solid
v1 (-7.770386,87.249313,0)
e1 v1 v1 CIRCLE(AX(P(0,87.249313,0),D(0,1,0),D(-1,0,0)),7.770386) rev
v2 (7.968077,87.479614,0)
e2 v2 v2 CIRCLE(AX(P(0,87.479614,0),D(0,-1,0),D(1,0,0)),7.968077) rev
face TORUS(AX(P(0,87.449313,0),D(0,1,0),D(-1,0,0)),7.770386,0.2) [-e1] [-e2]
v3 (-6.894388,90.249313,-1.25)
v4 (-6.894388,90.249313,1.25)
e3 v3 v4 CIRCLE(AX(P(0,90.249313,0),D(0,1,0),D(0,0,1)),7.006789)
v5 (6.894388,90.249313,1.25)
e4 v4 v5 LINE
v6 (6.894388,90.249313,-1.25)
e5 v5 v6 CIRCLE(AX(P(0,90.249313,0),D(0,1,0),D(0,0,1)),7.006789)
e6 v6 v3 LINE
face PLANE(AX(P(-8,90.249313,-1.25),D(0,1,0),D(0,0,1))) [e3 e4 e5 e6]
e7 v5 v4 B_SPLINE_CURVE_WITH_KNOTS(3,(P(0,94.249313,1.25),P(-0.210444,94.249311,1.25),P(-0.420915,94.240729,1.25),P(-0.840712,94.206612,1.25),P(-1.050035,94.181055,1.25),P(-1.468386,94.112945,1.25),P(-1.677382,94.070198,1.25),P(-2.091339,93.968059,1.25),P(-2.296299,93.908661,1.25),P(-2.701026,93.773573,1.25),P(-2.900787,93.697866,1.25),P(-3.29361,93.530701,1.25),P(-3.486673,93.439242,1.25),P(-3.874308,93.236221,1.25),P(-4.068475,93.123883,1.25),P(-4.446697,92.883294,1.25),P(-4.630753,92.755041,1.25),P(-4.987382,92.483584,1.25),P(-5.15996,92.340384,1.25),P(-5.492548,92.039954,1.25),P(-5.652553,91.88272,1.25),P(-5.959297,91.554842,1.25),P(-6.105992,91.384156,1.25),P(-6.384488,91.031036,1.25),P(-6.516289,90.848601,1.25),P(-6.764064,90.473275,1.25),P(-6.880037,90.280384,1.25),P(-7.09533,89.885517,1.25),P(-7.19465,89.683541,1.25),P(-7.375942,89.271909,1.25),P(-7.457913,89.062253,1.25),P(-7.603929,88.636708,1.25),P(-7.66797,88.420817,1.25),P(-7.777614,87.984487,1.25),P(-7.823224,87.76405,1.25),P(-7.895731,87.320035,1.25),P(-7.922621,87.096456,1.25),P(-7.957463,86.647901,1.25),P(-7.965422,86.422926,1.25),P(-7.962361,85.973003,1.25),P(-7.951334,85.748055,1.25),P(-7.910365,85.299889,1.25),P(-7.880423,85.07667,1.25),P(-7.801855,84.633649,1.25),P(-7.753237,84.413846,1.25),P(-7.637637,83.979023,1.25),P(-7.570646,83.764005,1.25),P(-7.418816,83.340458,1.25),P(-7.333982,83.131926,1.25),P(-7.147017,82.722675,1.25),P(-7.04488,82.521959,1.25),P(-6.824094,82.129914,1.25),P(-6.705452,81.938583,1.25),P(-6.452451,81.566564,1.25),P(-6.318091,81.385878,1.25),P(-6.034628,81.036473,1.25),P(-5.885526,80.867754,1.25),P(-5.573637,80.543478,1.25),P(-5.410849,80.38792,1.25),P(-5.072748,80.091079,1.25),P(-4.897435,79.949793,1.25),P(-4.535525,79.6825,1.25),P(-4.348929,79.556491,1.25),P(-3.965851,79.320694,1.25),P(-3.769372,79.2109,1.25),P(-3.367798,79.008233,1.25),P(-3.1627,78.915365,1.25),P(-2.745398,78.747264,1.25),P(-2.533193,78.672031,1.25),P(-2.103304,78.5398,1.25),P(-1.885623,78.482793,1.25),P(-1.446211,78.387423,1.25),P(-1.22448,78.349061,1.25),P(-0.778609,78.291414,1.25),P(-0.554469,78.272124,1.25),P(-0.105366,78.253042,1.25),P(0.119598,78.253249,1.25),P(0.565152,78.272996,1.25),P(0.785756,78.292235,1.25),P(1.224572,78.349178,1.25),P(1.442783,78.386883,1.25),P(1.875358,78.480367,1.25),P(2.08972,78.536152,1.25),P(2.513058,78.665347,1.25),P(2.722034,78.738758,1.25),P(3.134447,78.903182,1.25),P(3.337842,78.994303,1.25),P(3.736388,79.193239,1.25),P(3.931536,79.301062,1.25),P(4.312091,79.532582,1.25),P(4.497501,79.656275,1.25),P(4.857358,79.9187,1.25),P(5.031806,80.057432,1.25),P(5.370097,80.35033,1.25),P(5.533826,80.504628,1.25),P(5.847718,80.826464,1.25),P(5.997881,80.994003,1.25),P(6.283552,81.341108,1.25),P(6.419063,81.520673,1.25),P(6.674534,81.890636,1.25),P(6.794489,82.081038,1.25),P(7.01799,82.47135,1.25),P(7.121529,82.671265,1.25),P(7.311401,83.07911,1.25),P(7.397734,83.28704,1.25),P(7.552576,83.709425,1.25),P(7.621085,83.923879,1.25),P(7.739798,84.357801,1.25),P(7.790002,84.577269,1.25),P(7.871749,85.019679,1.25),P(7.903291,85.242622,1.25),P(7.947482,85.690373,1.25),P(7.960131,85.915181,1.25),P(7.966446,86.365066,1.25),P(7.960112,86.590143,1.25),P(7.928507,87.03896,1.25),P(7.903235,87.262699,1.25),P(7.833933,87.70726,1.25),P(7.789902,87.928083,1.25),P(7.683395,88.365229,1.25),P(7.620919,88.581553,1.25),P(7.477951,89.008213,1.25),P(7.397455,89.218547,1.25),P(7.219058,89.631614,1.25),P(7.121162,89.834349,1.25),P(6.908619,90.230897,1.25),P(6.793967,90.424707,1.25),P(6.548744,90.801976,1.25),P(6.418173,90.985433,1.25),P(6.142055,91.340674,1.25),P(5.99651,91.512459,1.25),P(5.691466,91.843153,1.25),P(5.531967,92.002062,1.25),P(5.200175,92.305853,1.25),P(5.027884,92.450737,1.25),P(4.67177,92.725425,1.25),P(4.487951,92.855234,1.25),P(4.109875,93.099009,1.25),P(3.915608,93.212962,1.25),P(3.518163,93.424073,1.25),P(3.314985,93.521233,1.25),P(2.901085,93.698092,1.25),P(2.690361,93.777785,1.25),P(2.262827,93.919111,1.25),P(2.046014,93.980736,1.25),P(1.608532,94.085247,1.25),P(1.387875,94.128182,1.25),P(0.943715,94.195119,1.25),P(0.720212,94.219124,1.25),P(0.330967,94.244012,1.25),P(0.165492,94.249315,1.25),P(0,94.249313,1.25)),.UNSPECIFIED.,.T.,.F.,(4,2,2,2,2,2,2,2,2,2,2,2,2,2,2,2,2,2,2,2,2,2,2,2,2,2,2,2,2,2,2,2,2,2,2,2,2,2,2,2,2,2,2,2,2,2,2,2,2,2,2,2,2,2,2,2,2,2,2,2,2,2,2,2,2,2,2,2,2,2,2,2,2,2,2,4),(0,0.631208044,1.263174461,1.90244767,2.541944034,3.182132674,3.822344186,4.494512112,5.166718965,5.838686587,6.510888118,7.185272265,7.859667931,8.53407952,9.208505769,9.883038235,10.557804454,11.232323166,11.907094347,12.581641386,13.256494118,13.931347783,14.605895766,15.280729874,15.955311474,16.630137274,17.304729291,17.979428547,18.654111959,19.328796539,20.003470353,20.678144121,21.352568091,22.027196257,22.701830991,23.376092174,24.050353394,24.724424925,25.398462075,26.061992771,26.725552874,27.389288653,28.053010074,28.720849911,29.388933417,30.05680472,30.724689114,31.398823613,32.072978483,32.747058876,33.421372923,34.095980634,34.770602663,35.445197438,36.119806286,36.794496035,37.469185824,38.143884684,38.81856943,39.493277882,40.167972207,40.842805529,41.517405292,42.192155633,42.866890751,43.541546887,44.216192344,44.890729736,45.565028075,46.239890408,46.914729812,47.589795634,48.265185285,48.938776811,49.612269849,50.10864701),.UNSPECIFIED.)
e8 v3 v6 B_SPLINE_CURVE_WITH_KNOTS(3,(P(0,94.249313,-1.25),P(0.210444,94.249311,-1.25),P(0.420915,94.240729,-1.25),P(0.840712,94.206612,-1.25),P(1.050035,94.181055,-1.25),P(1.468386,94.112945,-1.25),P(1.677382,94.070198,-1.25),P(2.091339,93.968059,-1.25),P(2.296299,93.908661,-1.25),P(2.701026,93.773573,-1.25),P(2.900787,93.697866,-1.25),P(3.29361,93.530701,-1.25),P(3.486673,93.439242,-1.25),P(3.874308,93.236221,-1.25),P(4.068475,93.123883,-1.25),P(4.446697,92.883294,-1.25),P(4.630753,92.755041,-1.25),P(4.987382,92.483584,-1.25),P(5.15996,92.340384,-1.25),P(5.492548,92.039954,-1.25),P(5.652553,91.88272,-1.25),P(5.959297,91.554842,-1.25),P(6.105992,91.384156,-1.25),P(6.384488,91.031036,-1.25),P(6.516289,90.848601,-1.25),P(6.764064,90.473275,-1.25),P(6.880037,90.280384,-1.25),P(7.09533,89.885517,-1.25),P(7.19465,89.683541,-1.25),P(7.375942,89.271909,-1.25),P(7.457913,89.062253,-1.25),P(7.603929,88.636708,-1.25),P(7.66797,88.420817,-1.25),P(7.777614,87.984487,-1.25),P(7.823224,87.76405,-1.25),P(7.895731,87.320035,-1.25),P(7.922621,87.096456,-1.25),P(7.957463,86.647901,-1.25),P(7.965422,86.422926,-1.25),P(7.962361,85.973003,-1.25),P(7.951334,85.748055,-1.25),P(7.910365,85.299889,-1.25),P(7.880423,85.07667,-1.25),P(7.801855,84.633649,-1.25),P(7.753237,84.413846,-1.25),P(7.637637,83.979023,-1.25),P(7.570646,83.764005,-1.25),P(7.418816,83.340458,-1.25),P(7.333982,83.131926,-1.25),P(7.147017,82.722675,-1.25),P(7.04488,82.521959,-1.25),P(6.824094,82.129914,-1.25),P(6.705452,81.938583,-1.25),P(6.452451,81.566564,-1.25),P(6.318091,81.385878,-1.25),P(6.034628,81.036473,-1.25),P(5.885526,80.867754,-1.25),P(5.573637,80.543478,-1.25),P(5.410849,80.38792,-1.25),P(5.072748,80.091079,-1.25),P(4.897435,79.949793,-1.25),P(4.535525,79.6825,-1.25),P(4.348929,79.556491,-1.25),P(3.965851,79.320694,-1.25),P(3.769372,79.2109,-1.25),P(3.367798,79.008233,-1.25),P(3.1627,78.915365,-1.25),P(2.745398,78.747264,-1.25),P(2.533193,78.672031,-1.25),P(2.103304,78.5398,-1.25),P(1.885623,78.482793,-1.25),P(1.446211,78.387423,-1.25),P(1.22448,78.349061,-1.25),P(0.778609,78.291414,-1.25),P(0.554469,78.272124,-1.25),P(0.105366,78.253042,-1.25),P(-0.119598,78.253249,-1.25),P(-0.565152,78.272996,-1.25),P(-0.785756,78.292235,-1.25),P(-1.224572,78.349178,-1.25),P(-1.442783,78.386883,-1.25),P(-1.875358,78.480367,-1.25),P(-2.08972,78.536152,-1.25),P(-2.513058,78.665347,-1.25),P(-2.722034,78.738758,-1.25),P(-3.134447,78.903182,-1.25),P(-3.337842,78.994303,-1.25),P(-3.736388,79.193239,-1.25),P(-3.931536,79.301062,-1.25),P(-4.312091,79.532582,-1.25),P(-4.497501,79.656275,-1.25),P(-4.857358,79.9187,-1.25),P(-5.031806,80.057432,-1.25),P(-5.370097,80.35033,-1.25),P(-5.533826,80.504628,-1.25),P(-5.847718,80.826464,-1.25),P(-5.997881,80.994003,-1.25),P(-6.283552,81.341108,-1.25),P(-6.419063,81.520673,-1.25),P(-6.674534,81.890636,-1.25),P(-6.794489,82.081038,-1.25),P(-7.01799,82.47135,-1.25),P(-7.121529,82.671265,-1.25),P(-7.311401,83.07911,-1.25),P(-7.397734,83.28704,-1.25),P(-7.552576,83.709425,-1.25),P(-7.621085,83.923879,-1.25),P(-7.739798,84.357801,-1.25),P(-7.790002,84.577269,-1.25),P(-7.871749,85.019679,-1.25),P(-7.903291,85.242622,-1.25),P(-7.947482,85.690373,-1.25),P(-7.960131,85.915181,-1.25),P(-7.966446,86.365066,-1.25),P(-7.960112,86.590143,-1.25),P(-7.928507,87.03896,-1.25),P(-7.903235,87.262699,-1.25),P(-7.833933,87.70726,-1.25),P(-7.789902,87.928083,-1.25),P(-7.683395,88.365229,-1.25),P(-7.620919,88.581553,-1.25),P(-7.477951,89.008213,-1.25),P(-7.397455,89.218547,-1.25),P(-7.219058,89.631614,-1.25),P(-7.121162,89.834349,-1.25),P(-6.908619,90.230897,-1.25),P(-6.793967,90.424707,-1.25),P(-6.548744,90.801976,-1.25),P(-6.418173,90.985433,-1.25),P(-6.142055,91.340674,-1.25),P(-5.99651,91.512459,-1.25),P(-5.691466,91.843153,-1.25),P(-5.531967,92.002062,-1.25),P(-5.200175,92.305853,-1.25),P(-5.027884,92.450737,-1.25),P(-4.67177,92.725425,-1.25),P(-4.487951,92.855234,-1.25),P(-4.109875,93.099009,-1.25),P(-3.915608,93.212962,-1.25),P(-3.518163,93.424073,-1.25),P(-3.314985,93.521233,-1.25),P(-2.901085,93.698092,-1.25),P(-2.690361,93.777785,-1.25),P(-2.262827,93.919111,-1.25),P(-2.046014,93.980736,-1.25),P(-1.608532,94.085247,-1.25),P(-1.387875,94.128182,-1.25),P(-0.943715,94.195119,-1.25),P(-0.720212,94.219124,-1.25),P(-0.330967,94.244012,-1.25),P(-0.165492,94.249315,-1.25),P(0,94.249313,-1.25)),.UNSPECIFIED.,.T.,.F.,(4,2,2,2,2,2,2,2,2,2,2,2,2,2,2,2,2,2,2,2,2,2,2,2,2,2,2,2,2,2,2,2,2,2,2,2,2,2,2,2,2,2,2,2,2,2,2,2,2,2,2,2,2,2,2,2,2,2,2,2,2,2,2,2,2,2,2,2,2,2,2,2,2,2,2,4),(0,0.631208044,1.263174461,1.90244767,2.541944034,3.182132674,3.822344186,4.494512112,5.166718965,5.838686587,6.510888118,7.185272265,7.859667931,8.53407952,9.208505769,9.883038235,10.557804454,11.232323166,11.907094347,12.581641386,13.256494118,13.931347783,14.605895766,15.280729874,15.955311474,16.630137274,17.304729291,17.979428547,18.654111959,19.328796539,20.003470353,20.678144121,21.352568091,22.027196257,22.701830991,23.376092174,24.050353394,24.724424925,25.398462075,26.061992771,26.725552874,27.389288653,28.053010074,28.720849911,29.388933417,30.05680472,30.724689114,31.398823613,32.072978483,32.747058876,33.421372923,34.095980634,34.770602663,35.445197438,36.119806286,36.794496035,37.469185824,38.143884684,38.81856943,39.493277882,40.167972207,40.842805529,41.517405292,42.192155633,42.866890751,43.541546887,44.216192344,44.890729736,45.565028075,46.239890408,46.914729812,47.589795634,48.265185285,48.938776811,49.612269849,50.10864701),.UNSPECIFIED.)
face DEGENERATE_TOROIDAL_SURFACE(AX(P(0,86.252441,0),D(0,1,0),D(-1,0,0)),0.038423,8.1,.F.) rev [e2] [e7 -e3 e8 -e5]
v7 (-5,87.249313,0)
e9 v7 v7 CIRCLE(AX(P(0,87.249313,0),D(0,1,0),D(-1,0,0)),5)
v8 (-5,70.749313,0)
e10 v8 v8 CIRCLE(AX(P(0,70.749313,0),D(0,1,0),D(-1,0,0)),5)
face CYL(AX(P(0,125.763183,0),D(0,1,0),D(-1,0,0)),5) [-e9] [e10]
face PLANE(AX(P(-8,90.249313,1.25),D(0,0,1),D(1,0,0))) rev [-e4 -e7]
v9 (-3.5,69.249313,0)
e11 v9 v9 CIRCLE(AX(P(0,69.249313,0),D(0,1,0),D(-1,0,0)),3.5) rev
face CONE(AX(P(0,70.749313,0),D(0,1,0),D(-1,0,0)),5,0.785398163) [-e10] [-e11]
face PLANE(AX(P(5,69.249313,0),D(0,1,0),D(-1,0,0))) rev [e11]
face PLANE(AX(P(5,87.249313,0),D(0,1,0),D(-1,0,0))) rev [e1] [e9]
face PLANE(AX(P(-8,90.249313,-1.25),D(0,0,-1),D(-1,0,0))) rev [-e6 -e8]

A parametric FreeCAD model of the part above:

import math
import FreeCAD as App
import Part
import Sketcher
Q = App.Units.Quantity


def edges_at(feature, points):
    """Names of the edges that pass closest to the given points."""
    edges = feature.Shape.Edges
    near = lambda p: min(range(len(edges)), key=lambda i: edges[i].distToShape(Part.Vertex(*p))[0])
    return sorted({f"Edge{near(p) + 1}" for p in points})

doc = App.newDocument("Part")
body = doc.addObject("PartDesign::Body", "Body")

# Sketch on XY plane
sketch1 = body.newObject("Sketcher::SketchObject", "Sketch")
sketch1.AttachmentSupport = (doc.getObject("XY_Plane"), [""])
sketch1.MapMode = "FlatFace"
sketch1.addGeometry(Part.LineSegment(App.Vector(5, 87.2, 0), App.Vector(8, 87.2, 0)), False)
sketch1.addGeometry(Part.ArcOfCircle(Part.Circle(App.Vector(0, 86.3, 0), App.Vector(0, 0, 1), 8.1), math.radians(7), math.radians(81)), False)
sketch1.addGeometry(Part.LineSegment(App.Vector(1.2, 94.2, 0), App.Vector(0, 94.2, 0)), False)
sketch1.addGeometry(Part.LineSegment(App.Vector(0, 94.2, 0), App.Vector(0, 69.2, 0)), False)
sketch1.addGeometry(Part.LineSegment(App.Vector(0, 69.2, 0), App.Vector(5, 69.2, 0)), False)
sketch1.addGeometry(Part.LineSegment(App.Vector(5, 69.2, 0), App.Vector(5, 87.2, 0)), False)
sketch1.addConstraint(Sketcher.Constraint("Coincident", 0, 2, 1, 1))
sketch1.addConstraint(Sketcher.Constraint("Coincident", 1, 2, 2, 1))
sketch1.addConstraint(Sketcher.Constraint("Coincident", 2, 2, 3, 1))
sketch1.addConstraint(Sketcher.Constraint("Coincident", 3, 2, 4, 1))
sketch1.addConstraint(Sketcher.Constraint("Coincident", 4, 2, 5, 1))
sketch1.addConstraint(Sketcher.Constraint("Coincident", 5, 2, 0, 1))
sketch1.addConstraint(Sketcher.Constraint("Horizontal", 0))
sketch1.addConstraint(Sketcher.Constraint("Horizontal", 2))
sketch1.addConstraint(Sketcher.Constraint("Vertical", 3))
sketch1.addConstraint(Sketcher.Constraint("Horizontal", 4))
sketch1.addConstraint(Sketcher.Constraint("Vertical", 5))
sketch1.addConstraint(Sketcher.Constraint("PointOnObject", 2, 2, -2))
sketch1.addConstraint(Sketcher.Constraint("Radius", 1, Q("8.1 mm")))
sketch1.addConstraint(Sketcher.Constraint("DistanceX", 0, 1, 0, 2, Q("3 mm")))
sketch1.addConstraint(Sketcher.Constraint("DistanceX", 4, 1, 4, 2, Q("5 mm")))
sketch1.addConstraint(Sketcher.Constraint("DistanceY", 3, 2, 3, 1, Q("25 mm")))
sketch1.addConstraint(Sketcher.Constraint("DistanceY", 5, 1, 5, 2, Q("18 mm")))
sketch1.addConstraint(Sketcher.Constraint("DistanceX", 2, 2, 2, 1, Q("1.25 mm")))
sketch1.addConstraint(Sketcher.Constraint("DistanceY", -1, 1, 1, 3, Q("86.252441 mm")))
revolution = body.newObject("PartDesign::Revolution", "Revolution")
revolution.Profile = sketch1
revolution.ReferenceAxis = (sketch1, ["V_Axis"])
revolution.Angle = 360

# Sketch on XZ plane
sketch2 = body.newObject("Sketcher::SketchObject", "Sketch001")
sketch2.AttachmentSupport = (doc.getObject("XZ_Plane"), [""])
sketch2.MapMode = "FlatFace"
sketch2.AttachmentOffset = App.Placement(App.Vector(0, 0, -94.249313), App.Rotation())
sketch2.addGeometry(Part.LineSegment(App.Vector(8, 1.2, 0), App.Vector(8, -1.2, 0)), False)
sketch2.addGeometry(Part.LineSegment(App.Vector(8, -1.2, 0), App.Vector(-8, -1.2, 0)), False)
sketch2.addGeometry(Part.LineSegment(App.Vector(-8, -1.2, 0), App.Vector(-8, 1.2, 0)), False)
sketch2.addGeometry(Part.LineSegment(App.Vector(-8, 1.2, 0), App.Vector(8, 1.2, 0)), False)
sketch2.addConstraint(Sketcher.Constraint("Coincident", 0, 2, 1, 1))
sketch2.addConstraint(Sketcher.Constraint("Coincident", 1, 2, 2, 1))
sketch2.addConstraint(Sketcher.Constraint("Coincident", 2, 2, 3, 1))
sketch2.addConstraint(Sketcher.Constraint("Coincident", 3, 2, 0, 1))
sketch2.addConstraint(Sketcher.Constraint("Vertical", 0))
sketch2.addConstraint(Sketcher.Constraint("Horizontal", 1))
sketch2.addConstraint(Sketcher.Constraint("Vertical", 2))
sketch2.addConstraint(Sketcher.Constraint("Horizontal", 3))
sketch2.addConstraint(Sketcher.Constraint("Symmetric", 0, 2, 2, 2, -1, 1))
sketch2.addConstraint(Sketcher.Constraint("DistanceX", 1, 2, 1, 1, Q("16 mm")))
sketch2.addConstraint(Sketcher.Constraint("DistanceY", 0, 2, 0, 1, Q("2.5 mm")))
pocket1 = body.newObject("PartDesign::Pocket", "Pocket")
pocket1.Profile = sketch2
pocket1.Length = 4
pocket1.Reversed = True
doc.recompute()

fillet = body.newObject("PartDesign::Fillet", "Fillet")
fillet.Base = (pocket1, edges_at(pocket1, [(8, 87.249, 0)]))
fillet.Radius = 0.2
doc.recompute()

chamfer = body.newObject("PartDesign::Chamfer", "Chamfer")
chamfer.Base = (fillet, edges_at(fillet, [(5, 69.249, 0)]))
chamfer.Size = 1.5

doc.recompute()
